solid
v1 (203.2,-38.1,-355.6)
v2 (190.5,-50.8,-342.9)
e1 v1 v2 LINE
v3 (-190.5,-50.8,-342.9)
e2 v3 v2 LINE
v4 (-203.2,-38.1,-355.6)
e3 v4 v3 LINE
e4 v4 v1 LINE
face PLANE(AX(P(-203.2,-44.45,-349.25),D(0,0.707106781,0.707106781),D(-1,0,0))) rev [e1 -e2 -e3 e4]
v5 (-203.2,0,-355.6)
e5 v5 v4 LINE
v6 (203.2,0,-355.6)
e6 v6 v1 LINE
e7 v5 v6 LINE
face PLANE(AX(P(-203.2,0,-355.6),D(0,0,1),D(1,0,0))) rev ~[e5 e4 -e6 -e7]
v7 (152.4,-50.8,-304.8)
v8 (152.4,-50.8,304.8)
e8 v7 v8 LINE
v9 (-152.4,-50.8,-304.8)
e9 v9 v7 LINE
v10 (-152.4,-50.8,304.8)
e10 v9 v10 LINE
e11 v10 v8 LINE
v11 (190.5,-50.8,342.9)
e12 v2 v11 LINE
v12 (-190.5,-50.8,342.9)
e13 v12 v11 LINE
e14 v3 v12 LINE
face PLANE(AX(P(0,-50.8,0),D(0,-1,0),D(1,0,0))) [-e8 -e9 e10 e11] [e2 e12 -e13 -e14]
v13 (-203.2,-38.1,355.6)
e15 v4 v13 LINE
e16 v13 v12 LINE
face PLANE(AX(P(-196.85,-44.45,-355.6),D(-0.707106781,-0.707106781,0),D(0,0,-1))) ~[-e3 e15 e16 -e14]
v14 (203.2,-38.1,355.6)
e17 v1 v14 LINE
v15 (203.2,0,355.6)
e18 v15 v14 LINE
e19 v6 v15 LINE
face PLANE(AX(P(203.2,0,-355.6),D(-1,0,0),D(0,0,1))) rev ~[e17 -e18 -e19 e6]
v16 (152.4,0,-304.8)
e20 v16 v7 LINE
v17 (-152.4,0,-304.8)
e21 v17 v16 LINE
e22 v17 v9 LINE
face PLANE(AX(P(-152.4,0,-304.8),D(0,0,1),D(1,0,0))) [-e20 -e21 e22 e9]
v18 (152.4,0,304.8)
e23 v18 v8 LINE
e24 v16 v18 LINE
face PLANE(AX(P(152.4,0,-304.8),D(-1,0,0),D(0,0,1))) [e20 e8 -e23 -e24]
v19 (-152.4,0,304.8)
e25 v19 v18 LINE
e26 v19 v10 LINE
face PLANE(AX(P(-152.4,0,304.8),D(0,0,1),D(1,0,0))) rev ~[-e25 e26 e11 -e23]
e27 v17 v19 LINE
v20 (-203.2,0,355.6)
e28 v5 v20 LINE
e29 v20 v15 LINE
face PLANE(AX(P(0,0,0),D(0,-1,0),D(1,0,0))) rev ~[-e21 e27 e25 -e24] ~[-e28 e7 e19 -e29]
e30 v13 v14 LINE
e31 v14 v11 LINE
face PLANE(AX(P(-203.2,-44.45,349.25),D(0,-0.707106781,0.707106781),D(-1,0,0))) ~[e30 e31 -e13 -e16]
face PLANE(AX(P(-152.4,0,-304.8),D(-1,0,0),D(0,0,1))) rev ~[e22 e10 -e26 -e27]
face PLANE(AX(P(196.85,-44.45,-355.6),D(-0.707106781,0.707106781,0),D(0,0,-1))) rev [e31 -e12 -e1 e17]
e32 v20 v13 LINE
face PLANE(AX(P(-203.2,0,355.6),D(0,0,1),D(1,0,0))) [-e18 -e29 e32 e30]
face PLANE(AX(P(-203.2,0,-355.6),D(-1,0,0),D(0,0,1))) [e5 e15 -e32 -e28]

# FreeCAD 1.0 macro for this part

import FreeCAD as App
import Part
import Sketcher

V = App.Vector
Q = App.Units.Quantity


def edges_at(feature, points):
    """Names of the edges that pass closest to the given points."""
    edges = feature.Shape.Edges
    near = lambda p: min(range(len(edges)), key=lambda i: edges[i].distToShape(Part.Vertex(*p))[0])
    return sorted({f"Edge{near(p) + 1}" for p in points})

doc = App.newDocument("Part")
body = doc.addObject("PartDesign::Body", "Body")

sketch1 = body.newObject("Sketcher::SketchObject", "Sketch")
sketch1.AttachmentSupport = (doc.getObject("XZ_Plane"), [""])
sketch1.MapMode = "FlatFace"
sketch1.addGeometry([
    Part.LineSegment(V(-203.2, 355.6, 0), V(-203.2, -355.6, 0)),
    Part.LineSegment(V(-203.2, -355.6, 0), V(203.2, -355.6, 0)),
    Part.LineSegment(V(203.2, -355.6, 0), V(203.2, 355.6, 0)),
    Part.LineSegment(V(203.2, 355.6, 0), V(-203.2, 355.6, 0)),
    Part.LineSegment(V(152.4, -304.8, 0), V(-152.4, -304.8, 0)),
    Part.LineSegment(V(-152.4, -304.8, 0), V(-152.4, 304.8, 0)),
    Part.LineSegment(V(-152.4, 304.8, 0), V(152.4, 304.8, 0)),
    Part.LineSegment(V(152.4, 304.8, 0), V(152.4, -304.8, 0)),
], False)
sketch1.addConstraint([
    Sketcher.Constraint("Coincident", 0, 2, 1, 1),
    Sketcher.Constraint("Coincident", 1, 2, 2, 1),
    Sketcher.Constraint("Coincident", 2, 2, 3, 1),
    Sketcher.Constraint("Coincident", 3, 2, 0, 1),
    Sketcher.Constraint("Coincident", 4, 2, 5, 1),
    Sketcher.Constraint("Coincident", 5, 2, 6, 1),
    Sketcher.Constraint("Coincident", 6, 2, 7, 1),
    Sketcher.Constraint("Coincident", 7, 2, 4, 1),
    Sketcher.Constraint("Vertical", 0),
    Sketcher.Constraint("Horizontal", 1),
    Sketcher.Constraint("Vertical", 2),
    Sketcher.Constraint("Horizontal", 3),
    Sketcher.Constraint("Horizontal", 4),
    Sketcher.Constraint("Vertical", 5),
    Sketcher.Constraint("Horizontal", 6),
    Sketcher.Constraint("Vertical", 7),
    Sketcher.Constraint("Symmetric", 0, 2, 2, 2, -1, 1),
    Sketcher.Constraint("Symmetric", 4, 2, 6, 2, -1, 1),
    Sketcher.Constraint("DistanceX", 1, 1, 1, 2, Q("16 in")),
    Sketcher.Constraint("DistanceX", 4, 2, 4, 1, Q("12 in")),
    Sketcher.Constraint("DistanceY", 0, 2, 0, 1, Q("28 in")),
    Sketcher.Constraint("DistanceY", 5, 1, 5, 2, Q("24 in")),
])
pad1 = body.newObject("PartDesign::Pad", "Pad")
pad1.Profile = sketch1
pad1.Length = Q("2 in")
doc.recompute()

chamfer = body.newObject("PartDesign::Chamfer", "Chamfer")
chamfer.Base = (pad1, edges_at(pad1, [
    (203.2, -50.8, 0),
    (0, -50.8, 355.6),
    (-203.2, -50.8, 0),
    (0, -50.8, -355.6),
]))
chamfer.Size = Q("0.5 in")

doc.recompute()
